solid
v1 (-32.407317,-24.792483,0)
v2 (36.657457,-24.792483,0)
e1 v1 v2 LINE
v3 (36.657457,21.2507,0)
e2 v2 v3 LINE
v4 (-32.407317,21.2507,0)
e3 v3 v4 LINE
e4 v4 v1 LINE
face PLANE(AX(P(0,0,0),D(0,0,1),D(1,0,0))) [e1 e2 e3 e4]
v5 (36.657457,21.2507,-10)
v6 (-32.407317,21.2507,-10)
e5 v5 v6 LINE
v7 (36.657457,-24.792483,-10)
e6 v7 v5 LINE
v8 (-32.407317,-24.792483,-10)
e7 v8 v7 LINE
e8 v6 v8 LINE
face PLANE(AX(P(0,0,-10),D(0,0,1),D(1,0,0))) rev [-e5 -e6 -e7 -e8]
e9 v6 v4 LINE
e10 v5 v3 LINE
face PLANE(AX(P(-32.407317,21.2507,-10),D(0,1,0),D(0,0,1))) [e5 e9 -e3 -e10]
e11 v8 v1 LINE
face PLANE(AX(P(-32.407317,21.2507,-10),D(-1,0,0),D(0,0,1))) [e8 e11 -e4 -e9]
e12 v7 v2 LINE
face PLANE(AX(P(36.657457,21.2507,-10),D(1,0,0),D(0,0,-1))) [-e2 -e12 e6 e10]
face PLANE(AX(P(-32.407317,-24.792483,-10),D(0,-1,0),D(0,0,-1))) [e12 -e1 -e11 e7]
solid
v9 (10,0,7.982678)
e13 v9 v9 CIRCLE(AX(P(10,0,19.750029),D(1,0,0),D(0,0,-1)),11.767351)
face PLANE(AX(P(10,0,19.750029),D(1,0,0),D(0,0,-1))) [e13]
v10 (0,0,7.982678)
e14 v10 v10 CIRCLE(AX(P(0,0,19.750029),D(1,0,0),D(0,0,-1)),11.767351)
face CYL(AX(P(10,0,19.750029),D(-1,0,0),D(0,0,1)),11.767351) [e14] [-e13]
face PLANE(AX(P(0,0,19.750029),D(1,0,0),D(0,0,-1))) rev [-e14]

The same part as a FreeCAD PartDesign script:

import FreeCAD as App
import Part
import Sketcher

V = App.Vector
Q = App.Units.Quantity

doc = App.newDocument("Part")
params = doc.addObject("Spreadsheet::Sheet", "Params")
for row, (alias, value) in enumerate([
    ("pad1_length", "10 mm"),
    ("pad2_length", "10 mm"),
], start=1):
    params.set(f"A{row}", alias)
    params.set(f"B{row}", "=" + value)
    params.setAlias(f"B{row}", alias)

body = doc.addObject("PartDesign::Body", "Body")

# Sketch on XY plane
sketch1 = body.newObject("Sketcher::SketchObject", "Sketch")
sketch1.AttachmentSupport = (doc.getObject("XY_Plane"), [""])
sketch1.MapMode = "FlatFace"
sketch1.addGeometry([
    Part.LineSegment(V(-32.407317, 21.2507, 0), V(-32.407317, -24.792483, 0)),
    Part.LineSegment(V(-32.407317, -24.792483, 0), V(36.657457, -24.792483, 0)),
    Part.LineSegment(V(36.657457, -24.792483, 0), V(36.657457, 21.2507, 0)),
    Part.LineSegment(V(36.657457, 21.2507, 0), V(-32.407317, 21.2507, 0)),
], False)
sketch1.addConstraint([
    Sketcher.Constraint("Coincident", 0, 2, 1, 1),
    Sketcher.Constraint("Coincident", 1, 2, 2, 1),
    Sketcher.Constraint("Coincident", 2, 2, 3, 1),
    Sketcher.Constraint("Coincident", 3, 2, 0, 1),
    Sketcher.Constraint("Vertical", 0),
    Sketcher.Constraint("Horizontal", 1),
    Sketcher.Constraint("Vertical", 2),
    Sketcher.Constraint("Horizontal", 3),
    Sketcher.Constraint("DistanceY", -1, 1, 2, 2, Q("21.2507 mm")),
    Sketcher.Constraint("DistanceX", 1, 1, 1, 2, Q("69.064774 mm")),
    Sketcher.Constraint("DistanceY", 0, 2, 0, 1, Q("46.043183 mm")),
    Sketcher.Constraint("DistanceX", 0, 2, -1, 1, Q("32.407317 mm")),
])
pad1 = body.newObject("PartDesign::Pad", "Pad")
pad1.Profile = sketch1
pad1.setExpression("Length", "Params.pad1_length")
pad1.Reversed = True
body2 = doc.addObject("PartDesign::Body", "Body001")

# Sketch on YZ plane
sketch2 = body2.newObject("Sketcher::SketchObject", "Sketch001")
sketch2.AttachmentSupport = (doc.getObject("YZ_Plane001"), [""])
sketch2.MapMode = "FlatFace"
sketch2.addGeometry(Part.Circle(V(0, 19.750029, 0), V(0, 0, 1), 11.767351), False)
sketch2.addConstraint([
    Sketcher.Constraint("PointOnObject", 0, 3, -2),
    Sketcher.Constraint("Diameter", 0, Q("23.534701 mm")),
    Sketcher.Constraint("DistanceY", -1, 1, 0, 3, Q("19.750029 mm")),
])
pad2 = body2.newObject("PartDesign::Pad", "Pad001")
pad2.Profile = sketch2
pad2.setExpression("Length", "Params.pad2_length")

doc.recompute()
